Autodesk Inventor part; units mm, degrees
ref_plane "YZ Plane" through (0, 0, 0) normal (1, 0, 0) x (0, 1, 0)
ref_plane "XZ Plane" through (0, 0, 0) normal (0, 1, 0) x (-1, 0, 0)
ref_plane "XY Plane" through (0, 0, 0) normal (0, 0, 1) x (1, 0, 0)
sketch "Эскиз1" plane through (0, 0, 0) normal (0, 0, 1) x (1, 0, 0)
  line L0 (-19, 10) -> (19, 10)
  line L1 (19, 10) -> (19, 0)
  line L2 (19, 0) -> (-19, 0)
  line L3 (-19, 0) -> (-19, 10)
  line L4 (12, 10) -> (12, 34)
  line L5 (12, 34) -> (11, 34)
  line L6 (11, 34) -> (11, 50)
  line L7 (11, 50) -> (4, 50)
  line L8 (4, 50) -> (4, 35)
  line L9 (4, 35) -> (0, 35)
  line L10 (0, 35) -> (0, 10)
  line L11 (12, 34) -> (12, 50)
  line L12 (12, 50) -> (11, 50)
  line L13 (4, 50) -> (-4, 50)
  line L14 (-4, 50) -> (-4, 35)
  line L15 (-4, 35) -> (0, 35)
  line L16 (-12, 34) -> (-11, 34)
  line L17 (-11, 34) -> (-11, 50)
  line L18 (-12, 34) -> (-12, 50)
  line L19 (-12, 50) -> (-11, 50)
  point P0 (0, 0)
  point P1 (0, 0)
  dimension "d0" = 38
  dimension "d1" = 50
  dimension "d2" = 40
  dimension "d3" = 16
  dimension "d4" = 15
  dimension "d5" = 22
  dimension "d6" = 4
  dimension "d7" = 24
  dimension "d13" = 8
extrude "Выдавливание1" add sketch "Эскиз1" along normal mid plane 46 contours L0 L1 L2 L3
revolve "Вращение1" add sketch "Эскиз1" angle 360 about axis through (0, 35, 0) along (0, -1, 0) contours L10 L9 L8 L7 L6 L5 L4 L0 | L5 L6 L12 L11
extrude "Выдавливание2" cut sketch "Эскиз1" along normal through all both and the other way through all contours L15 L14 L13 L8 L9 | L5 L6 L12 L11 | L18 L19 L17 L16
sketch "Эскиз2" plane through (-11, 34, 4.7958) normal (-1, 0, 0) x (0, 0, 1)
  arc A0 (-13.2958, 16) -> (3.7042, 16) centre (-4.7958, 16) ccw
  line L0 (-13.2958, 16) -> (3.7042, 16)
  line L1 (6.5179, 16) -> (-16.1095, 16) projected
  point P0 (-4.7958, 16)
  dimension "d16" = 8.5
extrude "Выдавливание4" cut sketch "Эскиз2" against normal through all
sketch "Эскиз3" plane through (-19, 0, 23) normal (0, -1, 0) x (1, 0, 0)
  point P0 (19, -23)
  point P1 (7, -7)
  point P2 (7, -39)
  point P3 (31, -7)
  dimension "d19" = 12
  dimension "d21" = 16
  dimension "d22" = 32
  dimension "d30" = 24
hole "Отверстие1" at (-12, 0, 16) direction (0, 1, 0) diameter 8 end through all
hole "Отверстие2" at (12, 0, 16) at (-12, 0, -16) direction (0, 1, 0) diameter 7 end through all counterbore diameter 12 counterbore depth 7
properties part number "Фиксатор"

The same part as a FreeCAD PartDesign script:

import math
import FreeCAD as App
import Part
import Sketcher


def add_polygon(sketch, points):
    """Adds a closed chain of lines whose ends are joined by coincident constraints."""
    first, n = sketch.GeometryCount, len(points)
    for a, b in zip(points, points[1:] + points[:1]):
        sketch.addGeometry(Part.LineSegment(App.Vector(*a, 0), App.Vector(*b, 0)), False)
    for i in range(n):
        sketch.addConstraint(Sketcher.Constraint("Coincident", first + i, 2, first + (i + 1) % n, 1))

doc = App.newDocument("Part")
body = doc.addObject("PartDesign::Body", "Body")

# Sketch on XY plane
sketch1 = body.newObject("Sketcher::SketchObject", "Sketch")
sketch1.AttachmentSupport = (doc.getObject("XY_Plane"), [""])
sketch1.MapMode = "FlatFace"
add_polygon(sketch1, [(19, 10), (-19, 10), (-19, 0), (19, 0)])  # lines 0-3
sketch1.addConstraint([
    Sketcher.Constraint("Horizontal", 0),
    Sketcher.Constraint("Vertical", 1),
    Sketcher.Constraint("Horizontal", 2),
    Sketcher.Constraint("Vertical", 3),
    Sketcher.Constraint("Symmetric", 1, 2, 2, 2, -1, 1),
    Sketcher.Constraint("DistanceX", 0, 2, 0, 1, 38.0),
    Sketcher.Constraint("DistanceY", 1, 2, 1, 1, 10.0),
])
pad1 = body.newObject("PartDesign::Pad", "Pad")
pad1.Profile = sketch1
pad1.Length = 46
pad1.Midplane = True

# Sketch on XY plane
sketch2 = body.newObject("Sketcher::SketchObject", "Sketch001")
sketch2.AttachmentSupport = (doc.getObject("XY_Plane"), [""])
sketch2.MapMode = "FlatFace"
add_polygon(sketch2, [(0, 35), (0, 10), (12, 10), (12, 50), (4, 50), (4, 35)])  # lines 0-5
sketch2.addConstraint([
    Sketcher.Constraint("Vertical", 0),
    Sketcher.Constraint("Horizontal", 1),
    Sketcher.Constraint("Vertical", 2),
    Sketcher.Constraint("Horizontal", 3),
    Sketcher.Constraint("Vertical", 4),
    Sketcher.Constraint("Horizontal", 5),
    Sketcher.Constraint("PointOnObject", 0, 2, -2),
    Sketcher.Constraint("DistanceX", 3, 2, 3, 1, 8.0),
    Sketcher.Constraint("DistanceX", 5, 2, 5, 1, 4.0),
    Sketcher.Constraint("DistanceY", 2, 1, 2, 2, 40.0),
    Sketcher.Constraint("DistanceY", 4, 2, 4, 1, 15.0),
    Sketcher.Constraint("DistanceY", -1, 1, 2, 2, 50.0),
])
revolution = body.newObject("PartDesign::Revolution", "Revolution")
revolution.Profile = sketch2
revolution.ReferenceAxis = (sketch2, ["V_Axis"])
revolution.Angle = 360

# Sketch on XY plane
sketch3 = body.newObject("Sketcher::SketchObject", "Sketch002")
sketch3.AttachmentSupport = (doc.getObject("XY_Plane"), [""])
sketch3.MapMode = "FlatFace"
add_polygon(sketch3, [(-4, 35), (4, 35), (4, 50), (-4, 50)])  # lines 0-3
add_polygon(sketch3, [(11, 34), (12, 34), (12, 50), (11, 50)])  # lines 4-7
add_polygon(sketch3, [(-12, 50), (-12, 34), (-11, 34), (-11, 50)])  # lines 8-11
sketch3.addConstraint([
    Sketcher.Constraint("Horizontal", 0),
    Sketcher.Constraint("Vertical", 1),
    Sketcher.Constraint("Horizontal", 2),
    Sketcher.Constraint("Vertical", 3),
    Sketcher.Constraint("Horizontal", 4),
    Sketcher.Constraint("Vertical", 5),
    Sketcher.Constraint("Horizontal", 6),
    Sketcher.Constraint("Vertical", 7),
    Sketcher.Constraint("Vertical", 8),
    Sketcher.Constraint("Horizontal", 9),
    Sketcher.Constraint("Vertical", 10),
    Sketcher.Constraint("Horizontal", 11),
    Sketcher.Constraint("Symmetric", 4, 2, 8, 2, -2),
    Sketcher.Constraint("Symmetric", 6, 2, 10, 2, -2),
    Sketcher.Constraint("Horizontal", 2, 2, 5, 2),
    Sketcher.Constraint("DistanceX", 0, 1, 0, 2, 8.0),
    Sketcher.Constraint("DistanceY", 1, 1, 1, 2, 15.0),
    Sketcher.Constraint("DistanceY", 5, 1, 5, 2, 16.0),
    Sketcher.Constraint("DistanceX", -1, 1, 0, 2, 4.0),
    Sketcher.Constraint("DistanceY", -1, 1, 1, 2, 50.0),
    Sketcher.Constraint("DistanceX", 0, 2, 4, 2, 8.0),
    Sketcher.Constraint("DistanceX", 2, 2, 6, 2, 15.0),
])
pocket1 = body.newObject("PartDesign::Pocket", "Pocket")
pocket1.Profile = sketch3
pocket1.Type = "ThroughAll"
pocket1.Midplane = True

# Sketch on YZ plane
sketch4 = body.newObject("Sketcher::SketchObject", "Sketch003")
sketch4.AttachmentSupport = (doc.getObject("YZ_Plane"), [""])
sketch4.MapMode = "FlatFace"
sketch4.AttachmentOffset = App.Placement(App.Vector(0, 0, -11), App.Rotation())
sketch4.addGeometry([
    Part.LineSegment(App.Vector(50, 8.5, 0), App.Vector(50, -8.5, 0)),
    Part.ArcOfCircle(Part.Circle(App.Vector(50, 0, 0), App.Vector(0, 0, 1), 8.5), math.radians(90), math.radians(270)),
], False)
sketch4.addConstraint([
    Sketcher.Constraint("Coincident", 0, 1, 1, 1),
    Sketcher.Constraint("Coincident", 1, 2, 0, 2),
    Sketcher.Constraint("Vertical", 0),
    Sketcher.Constraint("PointOnObject", 1, 3, -1),
    Sketcher.Constraint("Vertical", 1, 3, 0, 1),
    Sketcher.Constraint("Radius", 1, 8.5),
    Sketcher.Constraint("DistanceX", -1, 1, 1, 3, 50.0),
])
pocket2 = body.newObject("PartDesign::Pocket", "Pocket001")
pocket2.Profile = sketch4
pocket2.Type = "ThroughAll"
pocket2.Reversed = True

# Sketch on XZ plane
sketch5 = body.newObject("Sketcher::SketchObject", "Sketch004")
sketch5.AttachmentSupport = (doc.getObject("XZ_Plane"), [""])
sketch5.MapMode = "FlatFace"
sketch5.addGeometry(Part.Circle(App.Vector(-12, 16, 0), App.Vector(0, 0, 1), 4), False)
sketch5.addConstraint([
    Sketcher.Constraint("Diameter", 0, 8.0),
    Sketcher.Constraint("DistanceX", 0, 3, -1, 1, 12.0),
    Sketcher.Constraint("DistanceY", -1, 1, 0, 3, 16.0),
])
doc.recompute()
hole = body.newObject("PartDesign::Hole", "Hole")
hole.Profile = sketch5
hole.ThreadType = "None"
hole.Diameter = 8
hole.DepthType = "ThroughAll"

# Sketch on XZ plane
sketch6 = body.newObject("Sketcher::SketchObject", "Sketch005")
sketch6.AttachmentSupport = (doc.getObject("XZ_Plane"), [""])
sketch6.MapMode = "FlatFace"
sketch6.addGeometry([
    Part.Circle(App.Vector(12, 16, 0), App.Vector(0, 0, 1), 3.5),
    Part.Circle(App.Vector(-12, -16, 0), App.Vector(0, 0, 1), 3.5),
], False)
sketch6.addConstraint([
    Sketcher.Constraint("Equal", 0, 1),
    Sketcher.Constraint("Symmetric", 0, 3, 1, 3, -1, 1),
    Sketcher.Constraint("Diameter", 0, 7.0),
    Sketcher.Constraint("DistanceX", -1, 1, 0, 3, 12.0),
    Sketcher.Constraint("DistanceY", -1, 1, 0, 3, 16.0),
])
doc.recompute()
hole2 = body.newObject("PartDesign::Hole", "Hole001")
hole2.Profile = sketch6
hole2.ThreadType = "None"
hole2.Diameter = 7
hole2.DepthType = "ThroughAll"
hole2.HoleCutType = "Counterbore"
hole2.HoleCutDiameter = 12
hole2.HoleCutDepth = 7

doc.recompute()
